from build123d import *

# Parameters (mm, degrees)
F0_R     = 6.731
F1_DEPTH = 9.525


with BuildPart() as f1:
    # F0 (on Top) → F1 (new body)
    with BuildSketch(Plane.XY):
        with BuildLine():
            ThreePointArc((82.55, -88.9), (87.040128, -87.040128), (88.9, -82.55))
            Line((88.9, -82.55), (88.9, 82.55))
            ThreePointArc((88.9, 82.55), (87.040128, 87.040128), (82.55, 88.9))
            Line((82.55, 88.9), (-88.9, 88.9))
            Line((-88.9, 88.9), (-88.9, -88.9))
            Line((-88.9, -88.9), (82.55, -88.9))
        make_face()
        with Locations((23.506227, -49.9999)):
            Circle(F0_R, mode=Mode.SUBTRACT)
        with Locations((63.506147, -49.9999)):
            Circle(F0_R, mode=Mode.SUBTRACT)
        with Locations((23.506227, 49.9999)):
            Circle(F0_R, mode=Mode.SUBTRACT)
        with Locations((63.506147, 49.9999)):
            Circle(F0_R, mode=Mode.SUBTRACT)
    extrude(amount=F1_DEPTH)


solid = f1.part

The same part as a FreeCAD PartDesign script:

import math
import FreeCAD as App
import Part
import Sketcher
from FreeCAD import Vector
Q = App.Units.Quantity

doc = App.newDocument("Part")
body = doc.addObject("PartDesign::Body", "Body")

# Sketch on XY plane
sketch1 = doc.addObject("Sketcher::SketchObject", "Sketch")
body.addObject(sketch1)
sketch1.AttachmentSupport = (doc.XY_Plane, [""])
sketch1.MapMode = "FlatFace"
sketch1.addGeometry([
    Part.ArcOfCircle(Part.Circle(Vector(83, -83, 0), Vector(0, 0, 1), 6), math.radians(-90), math.radians(0)),  # 0
    Part.LineSegment(Vector(89, -83, 0), Vector(89, 83, 0)),  # 1
    Part.ArcOfCircle(Part.Circle(Vector(83, 83, 0), Vector(0, 0, 1), 6), math.radians(0), math.radians(90)),  # 2
    Part.LineSegment(Vector(83, 89, 0), Vector(-89, 89, 0)),  # 3
    Part.LineSegment(Vector(-89, 89, 0), Vector(-89, -89, 0)),  # 4
    Part.LineSegment(Vector(-89, -89, 0), Vector(83, -89, 0)),  # 5
    Part.Circle(Vector(24, -50, 0), Vector(0, 0, 1), 7),  # 6
    Part.Circle(Vector(64, -50, 0), Vector(0, 0, 1), 7),  # 7
    Part.Circle(Vector(24, 50, 0), Vector(0, 0, 1), 7),  # 8
    Part.Circle(Vector(64, 50, 0), Vector(0, 0, 1), 7),  # 9
], False)
sketch1.addConstraint([
    Sketcher.Constraint("Tangent", 0, 2, 1, 1),
    Sketcher.Constraint("Tangent", 1, 2, 2, 1),
    Sketcher.Constraint("Tangent", 2, 2, 3, 1),
    Sketcher.Constraint("Coincident", 3, 2, 4, 1),
    Sketcher.Constraint("Coincident", 4, 2, 5, 1),
    Sketcher.Constraint("Tangent", 5, 2, 0, 1),
    Sketcher.Constraint("Vertical", 1),
    Sketcher.Constraint("Horizontal", 3),
    Sketcher.Constraint("Vertical", 4),
    Sketcher.Constraint("Horizontal", 5),
    Sketcher.Constraint("Equal", 0, 2),
    Sketcher.Constraint("Equal", 6, 7),
    Sketcher.Constraint("Equal", 7, 8),
    Sketcher.Constraint("Equal", 8, 9),
    Sketcher.Constraint("Symmetric", 6, 3, 8, 3, -1),
    Sketcher.Constraint("Symmetric", 7, 3, 9, 3, -1),
    Sketcher.Constraint("Horizontal", 6, 3, 7, 3),
    Sketcher.Constraint("Diameter", 6, Q("0.53 in")),
    Sketcher.Constraint("DistanceY", 4, 2, 4, 1, Q("7 in")),
    Sketcher.Constraint("Radius", 0, Q("0.25 in")),
    Sketcher.Constraint("DistanceX", 3, 2, 1, 2, Q("7 in")),
    Sketcher.Constraint("DistanceX", -1, 1, 0, 2, Q("3.5 in")),
    Sketcher.Constraint("DistanceY", -1, 1, 2, 2, Q("3.5 in")),
    Sketcher.Constraint("DistanceY", 6, 3, 8, 3, Q("3.937 in")),
    Sketcher.Constraint("DistanceX", 6, 3, 7, 3, Q("1.5748 in")),
    Sketcher.Constraint("DistanceX", -1, 1, 6, 3, 23.506227),
])
pad1 = doc.addObject("PartDesign::Pad", "Pad")
body.addObject(pad1)
pad1.Profile = sketch1
pad1.Length = Q("0.375 in")

doc.recompute()
